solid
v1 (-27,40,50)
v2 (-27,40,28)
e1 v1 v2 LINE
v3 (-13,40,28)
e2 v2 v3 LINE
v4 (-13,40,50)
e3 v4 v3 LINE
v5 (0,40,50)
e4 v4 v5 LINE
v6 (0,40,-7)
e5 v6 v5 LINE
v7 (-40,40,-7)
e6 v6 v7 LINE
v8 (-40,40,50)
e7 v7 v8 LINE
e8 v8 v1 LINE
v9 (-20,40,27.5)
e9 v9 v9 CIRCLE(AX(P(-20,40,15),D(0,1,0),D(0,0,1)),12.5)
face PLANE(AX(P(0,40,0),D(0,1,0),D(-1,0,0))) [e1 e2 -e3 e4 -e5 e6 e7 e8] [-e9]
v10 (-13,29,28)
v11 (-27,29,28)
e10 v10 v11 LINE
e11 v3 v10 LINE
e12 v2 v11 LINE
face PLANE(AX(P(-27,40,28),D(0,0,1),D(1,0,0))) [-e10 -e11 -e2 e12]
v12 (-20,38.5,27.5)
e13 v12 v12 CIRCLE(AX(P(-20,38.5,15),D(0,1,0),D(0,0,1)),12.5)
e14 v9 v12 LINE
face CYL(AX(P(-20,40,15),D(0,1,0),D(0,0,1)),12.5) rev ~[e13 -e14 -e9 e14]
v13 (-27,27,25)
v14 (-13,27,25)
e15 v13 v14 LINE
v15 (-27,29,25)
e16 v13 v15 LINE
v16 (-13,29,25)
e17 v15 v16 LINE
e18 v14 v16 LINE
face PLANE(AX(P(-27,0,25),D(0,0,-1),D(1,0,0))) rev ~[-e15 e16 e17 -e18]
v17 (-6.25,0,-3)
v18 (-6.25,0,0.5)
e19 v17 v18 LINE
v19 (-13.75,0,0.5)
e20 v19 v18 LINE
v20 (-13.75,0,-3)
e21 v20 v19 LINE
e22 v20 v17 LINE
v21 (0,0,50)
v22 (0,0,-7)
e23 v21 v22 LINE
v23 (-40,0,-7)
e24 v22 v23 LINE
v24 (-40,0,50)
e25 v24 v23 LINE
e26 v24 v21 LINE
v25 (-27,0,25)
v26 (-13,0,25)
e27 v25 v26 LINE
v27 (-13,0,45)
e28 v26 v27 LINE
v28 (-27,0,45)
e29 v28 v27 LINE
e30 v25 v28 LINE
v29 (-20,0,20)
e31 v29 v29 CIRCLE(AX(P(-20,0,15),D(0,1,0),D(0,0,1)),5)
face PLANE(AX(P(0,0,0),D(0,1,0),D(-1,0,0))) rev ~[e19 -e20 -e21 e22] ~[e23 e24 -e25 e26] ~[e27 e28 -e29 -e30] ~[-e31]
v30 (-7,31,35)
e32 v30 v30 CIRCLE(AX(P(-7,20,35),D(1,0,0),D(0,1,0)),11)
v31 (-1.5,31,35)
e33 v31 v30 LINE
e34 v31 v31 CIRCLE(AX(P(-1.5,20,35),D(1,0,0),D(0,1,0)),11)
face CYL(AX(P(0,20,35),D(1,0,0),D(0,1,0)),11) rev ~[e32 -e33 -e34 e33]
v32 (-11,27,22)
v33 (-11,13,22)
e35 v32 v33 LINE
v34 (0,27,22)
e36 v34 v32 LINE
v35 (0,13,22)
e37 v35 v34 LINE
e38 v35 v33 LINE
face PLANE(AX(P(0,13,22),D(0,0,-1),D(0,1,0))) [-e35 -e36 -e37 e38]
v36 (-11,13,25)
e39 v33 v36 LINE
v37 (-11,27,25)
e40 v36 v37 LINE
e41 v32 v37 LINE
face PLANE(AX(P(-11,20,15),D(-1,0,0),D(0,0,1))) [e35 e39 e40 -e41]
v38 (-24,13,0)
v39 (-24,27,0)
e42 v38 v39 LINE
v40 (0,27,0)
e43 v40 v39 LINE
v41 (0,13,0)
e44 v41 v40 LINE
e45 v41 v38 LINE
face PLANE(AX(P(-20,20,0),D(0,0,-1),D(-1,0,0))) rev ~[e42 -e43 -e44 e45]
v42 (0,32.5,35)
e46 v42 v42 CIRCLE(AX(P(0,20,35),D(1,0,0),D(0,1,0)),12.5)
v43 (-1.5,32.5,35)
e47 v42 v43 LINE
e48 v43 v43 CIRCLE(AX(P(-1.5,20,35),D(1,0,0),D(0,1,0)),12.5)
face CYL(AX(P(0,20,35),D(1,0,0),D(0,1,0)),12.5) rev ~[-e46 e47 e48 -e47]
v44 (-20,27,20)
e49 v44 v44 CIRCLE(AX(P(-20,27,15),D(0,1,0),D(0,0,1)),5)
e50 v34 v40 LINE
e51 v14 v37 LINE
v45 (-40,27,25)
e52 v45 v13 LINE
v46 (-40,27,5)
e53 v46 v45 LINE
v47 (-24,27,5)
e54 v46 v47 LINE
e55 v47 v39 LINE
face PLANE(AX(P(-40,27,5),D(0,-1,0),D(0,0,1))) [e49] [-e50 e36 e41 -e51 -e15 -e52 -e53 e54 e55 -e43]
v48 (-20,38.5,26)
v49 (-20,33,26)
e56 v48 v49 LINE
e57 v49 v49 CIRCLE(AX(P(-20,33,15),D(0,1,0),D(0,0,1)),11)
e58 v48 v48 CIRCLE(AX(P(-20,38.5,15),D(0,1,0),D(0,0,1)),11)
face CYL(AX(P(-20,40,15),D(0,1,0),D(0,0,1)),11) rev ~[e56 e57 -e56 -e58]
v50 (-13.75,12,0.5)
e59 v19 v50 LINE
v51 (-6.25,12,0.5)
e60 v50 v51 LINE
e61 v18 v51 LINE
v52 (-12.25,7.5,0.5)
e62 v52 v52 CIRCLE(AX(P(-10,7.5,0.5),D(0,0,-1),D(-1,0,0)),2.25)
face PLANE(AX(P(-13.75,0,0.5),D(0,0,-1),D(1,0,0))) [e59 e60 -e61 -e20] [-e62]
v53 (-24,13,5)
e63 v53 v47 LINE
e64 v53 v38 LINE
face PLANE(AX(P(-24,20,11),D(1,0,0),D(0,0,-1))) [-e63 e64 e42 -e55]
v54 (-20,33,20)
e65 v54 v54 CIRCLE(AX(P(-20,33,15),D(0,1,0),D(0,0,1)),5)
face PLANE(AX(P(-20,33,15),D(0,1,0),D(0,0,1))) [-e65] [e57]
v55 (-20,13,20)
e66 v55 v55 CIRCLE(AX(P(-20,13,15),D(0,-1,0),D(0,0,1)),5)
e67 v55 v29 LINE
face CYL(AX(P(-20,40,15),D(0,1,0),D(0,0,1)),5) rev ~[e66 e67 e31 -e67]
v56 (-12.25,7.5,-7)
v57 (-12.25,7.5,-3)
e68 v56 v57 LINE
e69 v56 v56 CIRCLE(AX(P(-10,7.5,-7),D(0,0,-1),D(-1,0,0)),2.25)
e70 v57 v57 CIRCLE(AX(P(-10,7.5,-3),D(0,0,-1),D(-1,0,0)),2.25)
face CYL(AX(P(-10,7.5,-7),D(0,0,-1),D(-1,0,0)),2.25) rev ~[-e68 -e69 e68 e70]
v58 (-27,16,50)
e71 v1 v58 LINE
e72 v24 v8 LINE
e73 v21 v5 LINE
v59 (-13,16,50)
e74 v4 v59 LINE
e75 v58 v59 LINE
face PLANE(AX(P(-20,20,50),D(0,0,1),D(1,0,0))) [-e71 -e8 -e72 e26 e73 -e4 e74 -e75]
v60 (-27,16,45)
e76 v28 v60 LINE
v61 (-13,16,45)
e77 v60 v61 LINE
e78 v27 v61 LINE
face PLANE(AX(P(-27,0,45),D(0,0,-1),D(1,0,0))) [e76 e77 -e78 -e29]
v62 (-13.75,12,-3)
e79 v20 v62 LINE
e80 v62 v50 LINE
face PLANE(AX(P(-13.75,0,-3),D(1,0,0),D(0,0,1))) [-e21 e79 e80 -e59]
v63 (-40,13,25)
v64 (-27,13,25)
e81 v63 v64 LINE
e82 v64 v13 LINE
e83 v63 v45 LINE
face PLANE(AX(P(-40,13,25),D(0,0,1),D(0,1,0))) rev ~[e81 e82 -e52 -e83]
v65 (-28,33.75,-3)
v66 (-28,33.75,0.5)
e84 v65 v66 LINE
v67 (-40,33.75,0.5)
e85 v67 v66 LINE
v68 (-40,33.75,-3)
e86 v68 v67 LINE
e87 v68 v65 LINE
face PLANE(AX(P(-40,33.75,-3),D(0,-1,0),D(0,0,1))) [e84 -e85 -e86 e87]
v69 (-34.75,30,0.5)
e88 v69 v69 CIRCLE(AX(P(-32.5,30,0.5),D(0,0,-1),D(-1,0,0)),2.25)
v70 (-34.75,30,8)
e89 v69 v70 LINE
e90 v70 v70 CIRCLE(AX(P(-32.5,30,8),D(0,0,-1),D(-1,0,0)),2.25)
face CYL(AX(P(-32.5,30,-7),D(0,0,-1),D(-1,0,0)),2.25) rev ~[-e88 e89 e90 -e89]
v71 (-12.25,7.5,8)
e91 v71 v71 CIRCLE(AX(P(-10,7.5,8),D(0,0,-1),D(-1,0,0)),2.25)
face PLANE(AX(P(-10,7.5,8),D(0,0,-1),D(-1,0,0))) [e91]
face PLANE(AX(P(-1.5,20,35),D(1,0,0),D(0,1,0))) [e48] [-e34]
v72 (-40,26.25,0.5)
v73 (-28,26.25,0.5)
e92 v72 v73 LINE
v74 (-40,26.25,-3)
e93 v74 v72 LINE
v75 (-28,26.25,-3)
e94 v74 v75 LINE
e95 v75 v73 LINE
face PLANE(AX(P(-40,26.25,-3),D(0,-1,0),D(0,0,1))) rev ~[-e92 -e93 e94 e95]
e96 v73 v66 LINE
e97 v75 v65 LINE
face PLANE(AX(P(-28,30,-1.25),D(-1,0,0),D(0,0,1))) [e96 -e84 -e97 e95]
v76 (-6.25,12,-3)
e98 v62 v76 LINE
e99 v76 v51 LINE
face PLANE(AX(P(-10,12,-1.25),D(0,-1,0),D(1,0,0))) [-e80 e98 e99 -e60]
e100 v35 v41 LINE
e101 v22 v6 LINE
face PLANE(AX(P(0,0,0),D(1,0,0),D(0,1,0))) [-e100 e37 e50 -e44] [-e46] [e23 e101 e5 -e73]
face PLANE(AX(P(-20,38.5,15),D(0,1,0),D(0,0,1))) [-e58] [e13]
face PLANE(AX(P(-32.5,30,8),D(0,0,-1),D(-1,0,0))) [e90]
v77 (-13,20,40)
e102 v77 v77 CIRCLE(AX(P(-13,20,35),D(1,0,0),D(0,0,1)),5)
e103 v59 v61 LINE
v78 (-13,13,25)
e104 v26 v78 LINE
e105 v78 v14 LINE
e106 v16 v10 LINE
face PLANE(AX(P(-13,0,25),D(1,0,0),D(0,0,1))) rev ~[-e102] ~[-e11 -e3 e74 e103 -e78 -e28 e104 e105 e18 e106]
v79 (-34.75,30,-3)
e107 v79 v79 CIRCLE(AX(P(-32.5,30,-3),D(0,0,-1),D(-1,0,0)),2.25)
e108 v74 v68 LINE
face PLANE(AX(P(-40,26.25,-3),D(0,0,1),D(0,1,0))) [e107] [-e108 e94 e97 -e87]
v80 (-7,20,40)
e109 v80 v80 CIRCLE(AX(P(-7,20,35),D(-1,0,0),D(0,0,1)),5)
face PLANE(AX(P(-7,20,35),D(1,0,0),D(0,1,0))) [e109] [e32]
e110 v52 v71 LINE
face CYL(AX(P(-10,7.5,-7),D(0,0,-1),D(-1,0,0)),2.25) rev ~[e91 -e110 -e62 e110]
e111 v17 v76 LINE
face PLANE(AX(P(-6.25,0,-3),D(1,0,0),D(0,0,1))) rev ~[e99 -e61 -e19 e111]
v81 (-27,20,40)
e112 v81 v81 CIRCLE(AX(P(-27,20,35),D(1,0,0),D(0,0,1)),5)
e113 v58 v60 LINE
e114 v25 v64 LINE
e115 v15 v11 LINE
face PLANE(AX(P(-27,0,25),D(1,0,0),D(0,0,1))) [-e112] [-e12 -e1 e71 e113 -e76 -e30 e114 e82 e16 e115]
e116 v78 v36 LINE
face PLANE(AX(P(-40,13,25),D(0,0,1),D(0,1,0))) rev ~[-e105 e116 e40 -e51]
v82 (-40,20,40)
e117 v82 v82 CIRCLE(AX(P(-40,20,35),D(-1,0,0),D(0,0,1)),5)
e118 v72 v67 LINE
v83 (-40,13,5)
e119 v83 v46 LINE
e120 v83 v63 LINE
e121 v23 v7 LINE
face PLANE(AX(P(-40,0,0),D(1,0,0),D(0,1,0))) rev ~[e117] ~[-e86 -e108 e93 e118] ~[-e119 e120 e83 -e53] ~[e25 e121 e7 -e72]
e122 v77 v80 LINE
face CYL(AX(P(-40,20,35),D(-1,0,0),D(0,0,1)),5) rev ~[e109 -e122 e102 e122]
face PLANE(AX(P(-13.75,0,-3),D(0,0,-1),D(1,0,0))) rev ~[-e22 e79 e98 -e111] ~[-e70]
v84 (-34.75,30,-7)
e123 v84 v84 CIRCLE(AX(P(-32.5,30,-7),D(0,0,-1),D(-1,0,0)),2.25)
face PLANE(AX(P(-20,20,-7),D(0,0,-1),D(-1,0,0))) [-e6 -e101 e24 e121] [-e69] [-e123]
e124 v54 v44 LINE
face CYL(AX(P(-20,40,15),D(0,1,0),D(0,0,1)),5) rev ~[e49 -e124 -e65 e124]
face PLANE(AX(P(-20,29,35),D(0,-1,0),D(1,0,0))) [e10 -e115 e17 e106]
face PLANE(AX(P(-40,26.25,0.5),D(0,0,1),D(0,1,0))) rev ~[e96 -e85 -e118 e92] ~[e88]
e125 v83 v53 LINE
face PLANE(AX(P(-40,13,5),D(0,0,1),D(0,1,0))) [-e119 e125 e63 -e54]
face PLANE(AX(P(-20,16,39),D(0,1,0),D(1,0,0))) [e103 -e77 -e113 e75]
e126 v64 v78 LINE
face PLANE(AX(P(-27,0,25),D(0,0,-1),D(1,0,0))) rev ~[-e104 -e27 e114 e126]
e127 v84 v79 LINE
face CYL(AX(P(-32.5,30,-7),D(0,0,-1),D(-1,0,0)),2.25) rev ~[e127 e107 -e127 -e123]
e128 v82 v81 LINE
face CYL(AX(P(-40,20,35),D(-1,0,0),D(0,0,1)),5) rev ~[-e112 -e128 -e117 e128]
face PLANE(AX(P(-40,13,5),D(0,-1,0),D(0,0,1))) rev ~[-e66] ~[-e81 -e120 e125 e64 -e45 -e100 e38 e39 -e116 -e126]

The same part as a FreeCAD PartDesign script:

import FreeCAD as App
import Part
import Sketcher

V = App.Vector


def add_polygon(sketch, points):
    """Adds a closed chain of lines whose ends are joined by coincident constraints."""
    first, n = sketch.GeometryCount, len(points)
    for a, b in zip(points, points[1:] + points[:1]):
        sketch.addGeometry(Part.LineSegment(App.Vector(*a, 0), App.Vector(*b, 0)), False)
    for i in range(n):
        sketch.addConstraint(Sketcher.Constraint("Coincident", first + i, 2, first + (i + 1) % n, 1))

doc = App.newDocument("Part")
body = doc.addObject("PartDesign::Body", "Body")

# Sketch on XY plane
sketch1 = body.newObject("Sketcher::SketchObject", "Sketch")
sketch1.AttachmentSupport = (doc.getObject("XY_Plane"), [""])
sketch1.MapMode = "FlatFace"
add_polygon(sketch1, [(-40, 40), (-40, 0), (0, 0), (0, 40)])  # lines 0-3
sketch1.addConstraint(Sketcher.Constraint("Vertical", 0))
sketch1.addConstraint(Sketcher.Constraint("Horizontal", 1))
sketch1.addConstraint(Sketcher.Constraint("Vertical", 2))
sketch1.addConstraint(Sketcher.Constraint("Horizontal", 3))
sketch1.addConstraint(Sketcher.Constraint("Coincident", 1, 2, -1, 1))
sketch1.addConstraint(Sketcher.Constraint("Equal", 3, 0))
sketch1.addConstraint(Sketcher.Constraint("DistanceX", 1, 1, 1, 2, 40.0))
pad1 = body.newObject("PartDesign::Pad", "Pad")
pad1.Profile = sketch1
pad1.Length = 50

# Sketch on XZ plane
sketch2 = body.newObject("Sketcher::SketchObject", "Sketch001")
sketch2.AttachmentSupport = (doc.getObject("XZ_Plane"), [""])
sketch2.MapMode = "FlatFace"
sketch2.AttachmentOffset = App.Placement(V(0, 0, -40), App.Rotation())
sketch2.addGeometry(Part.Circle(V(-20, 15, 0), V(0, 0, 1), 5), False)
sketch2.addConstraint(Sketcher.Constraint("Diameter", 0, 10.0))
sketch2.addConstraint(Sketcher.Constraint("DistanceX", 0, 3, -1, 1, 20.0))
sketch2.addConstraint(Sketcher.Constraint("DistanceY", -1, 1, 0, 3, 15.0))
pocket1 = body.newObject("PartDesign::Pocket", "Pocket")
pocket1.Profile = sketch2
pocket1.Type = "ThroughAll"
pocket1.Reversed = True

# Sketch on YZ plane
sketch3 = body.newObject("Sketcher::SketchObject", "Sketch002")
sketch3.AttachmentSupport = (doc.getObject("YZ_Plane"), [""])
sketch3.MapMode = "FlatFace"
sketch3.AttachmentOffset = App.Placement(V(0, 0, -40), App.Rotation())
sketch3.addGeometry(Part.Circle(V(20, 35, 0), V(0, 0, 1), 5), False)
sketch3.addConstraint(Sketcher.Constraint("Diameter", 0, 10.0))
sketch3.addConstraint(Sketcher.Constraint("DistanceX", -1, 1, 0, 3, 20.0))
sketch3.addConstraint(Sketcher.Constraint("DistanceY", -1, 1, 0, 3, 35.0))
pocket2 = body.newObject("PartDesign::Pocket", "Pocket001")
pocket2.Profile = sketch3
pocket2.Type = "ThroughAll"
pocket2.Reversed = True

# Sketch on YZ plane
sketch4 = body.newObject("Sketcher::SketchObject", "Sketch003")
sketch4.AttachmentSupport = (doc.getObject("YZ_Plane"), [""])
sketch4.MapMode = "FlatFace"
sketch4.AttachmentOffset = App.Placement(V(0, 0, -40), App.Rotation())
add_polygon(sketch4, [(27, 5), (13, 5), (13, 25), (27, 25)])  # lines 0-3
sketch4.addConstraint(Sketcher.Constraint("Horizontal", 0))
sketch4.addConstraint(Sketcher.Constraint("Vertical", 1))
sketch4.addConstraint(Sketcher.Constraint("Horizontal", 2))
sketch4.addConstraint(Sketcher.Constraint("Vertical", 3))
sketch4.addConstraint(Sketcher.Constraint("DistanceX", 0, 2, 0, 1, 14.0))
sketch4.addConstraint(Sketcher.Constraint("DistanceY", 1, 1, 1, 2, 20.0))
sketch4.addConstraint(Sketcher.Constraint("DistanceX", -1, 1, 0, 2, 13.0))
sketch4.addConstraint(Sketcher.Constraint("DistanceY", -1, 1, 0, 2, 5.0))
pocket3 = body.newObject("PartDesign::Pocket", "Pocket002")
pocket3.Profile = sketch4
pocket3.Length = 29
pocket3.Reversed = True

# Sketch on XZ plane
sketch5 = body.newObject("Sketcher::SketchObject", "Sketch004")
sketch5.AttachmentSupport = (doc.getObject("XZ_Plane"), [""])
sketch5.MapMode = "FlatFace"
add_polygon(sketch5, [(-27, 45), (-27, 25), (-13, 25), (-13, 45)])  # lines 0-3
sketch5.addConstraint(Sketcher.Constraint("Vertical", 0))
sketch5.addConstraint(Sketcher.Constraint("Horizontal", 1))
sketch5.addConstraint(Sketcher.Constraint("Vertical", 2))
sketch5.addConstraint(Sketcher.Constraint("Horizontal", 3))
sketch5.addConstraint(Sketcher.Constraint("DistanceX", 1, 1, 1, 2, 14.0))
sketch5.addConstraint(Sketcher.Constraint("DistanceY", 0, 2, 0, 1, 20.0))
sketch5.addConstraint(Sketcher.Constraint("DistanceX", 0, 2, -1, 1, 27.0))
sketch5.addConstraint(Sketcher.Constraint("DistanceY", -1, 1, 0, 2, 25.0))
pocket4 = body.newObject("PartDesign::Pocket", "Pocket003")
pocket4.Profile = sketch5
pocket4.Length = 29

# Sketch on YZ plane
sketch6 = body.newObject("Sketcher::SketchObject", "Sketch005")
sketch6.AttachmentSupport = (doc.getObject("YZ_Plane"), [""])
sketch6.MapMode = "FlatFace"
add_polygon(sketch6, [(27, 22), (13, 22), (13, 0), (27, 0)])  # lines 0-3
sketch6.addConstraint(Sketcher.Constraint("Horizontal", 0))
sketch6.addConstraint(Sketcher.Constraint("Vertical", 1))
sketch6.addConstraint(Sketcher.Constraint("Horizontal", 2))
sketch6.addConstraint(Sketcher.Constraint("Vertical", 3))
sketch6.addConstraint(Sketcher.Constraint("PointOnObject", 1, 2, -1))
sketch6.addConstraint(Sketcher.Constraint("DistanceX", 0, 2, 0, 1, 14.0))
sketch6.addConstraint(Sketcher.Constraint("DistanceY", 1, 2, 1, 1, 22.0))
sketch6.addConstraint(Sketcher.Constraint("DistanceX", -1, 1, 0, 2, 13.0))
pocket5 = body.newObject("PartDesign::Pocket", "Pocket004")
pocket5.Profile = sketch6
pocket5.Length = 24

# Sketch on XZ plane
sketch7 = body.newObject("Sketcher::SketchObject", "Sketch006")
sketch7.AttachmentSupport = (doc.getObject("XZ_Plane"), [""])
sketch7.MapMode = "FlatFace"
sketch7.AttachmentOffset = App.Placement(V(0, 0, -40), App.Rotation())
add_polygon(sketch7, [(-27, 28), (-27, 50), (-13, 50), (-13, 28)])  # lines 0-3
sketch7.addConstraint(Sketcher.Constraint("Vertical", 0))
sketch7.addConstraint(Sketcher.Constraint("Horizontal", 1))
sketch7.addConstraint(Sketcher.Constraint("Vertical", 2))
sketch7.addConstraint(Sketcher.Constraint("Horizontal", 3))
sketch7.addConstraint(Sketcher.Constraint("DistanceX", 1, 1, 1, 2, 14.0))
sketch7.addConstraint(Sketcher.Constraint("DistanceY", 0, 1, 0, 2, 22.0))
sketch7.addConstraint(Sketcher.Constraint("DistanceX", 0, 2, -1, 1, 27.0))
sketch7.addConstraint(Sketcher.Constraint("DistanceY", -1, 1, 0, 2, 50.0))
pocket6 = body.newObject("PartDesign::Pocket", "Pocket005")
pocket6.Profile = sketch7
pocket6.Length = 24
pocket6.Reversed = True

# Sketch on YZ plane
sketch8 = body.newObject("Sketcher::SketchObject", "Sketch007")
sketch8.AttachmentSupport = (doc.getObject("YZ_Plane"), [""])
sketch8.MapMode = "FlatFace"
sketch8.addGeometry(Part.Circle(V(20, 35, 0), V(0, 0, 1), 11), False)
sketch8.addConstraint(Sketcher.Constraint("Diameter", 0, 22.0))
sketch8.addConstraint(Sketcher.Constraint("DistanceX", -1, 1, 0, 3, 20.0))
sketch8.addConstraint(Sketcher.Constraint("DistanceY", -1, 1, 0, 3, 35.0))
pocket7 = body.newObject("PartDesign::Pocket", "Pocket006")
pocket7.Profile = sketch8
pocket7.Length = 7

# Sketch on YZ plane
sketch9 = body.newObject("Sketcher::SketchObject", "Sketch008")
sketch9.AttachmentSupport = (doc.getObject("YZ_Plane"), [""])
sketch9.MapMode = "FlatFace"
sketch9.addGeometry(Part.Circle(V(20, 35, 0), V(0, 0, 1), 12), False)
sketch9.addConstraint(Sketcher.Constraint("Diameter", 0, 25.0))
sketch9.addConstraint(Sketcher.Constraint("DistanceX", -1, 1, 0, 3, 20.0))
sketch9.addConstraint(Sketcher.Constraint("DistanceY", -1, 1, 0, 3, 35.0))
pocket8 = body.newObject("PartDesign::Pocket", "Pocket007")
pocket8.Profile = sketch9
pocket8.Length = 1.5

# Sketch on XZ plane
sketch10 = body.newObject("Sketcher::SketchObject", "Sketch009")
sketch10.AttachmentSupport = (doc.getObject("XZ_Plane"), [""])
sketch10.MapMode = "FlatFace"
sketch10.AttachmentOffset = App.Placement(V(0, 0, -40), App.Rotation())
sketch10.addGeometry(Part.Circle(V(-20, 15, 0), V(0, 0, 1), 11), False)
sketch10.addConstraint(Sketcher.Constraint("Diameter", 0, 22.0))
sketch10.addConstraint(Sketcher.Constraint("DistanceX", 0, 3, -1, 1, 20.0))
sketch10.addConstraint(Sketcher.Constraint("DistanceY", -1, 1, 0, 3, 15.0))
pocket9 = body.newObject("PartDesign::Pocket", "Pocket008")
pocket9.Profile = sketch10
pocket9.Length = 7
pocket9.Reversed = True

# Sketch on XZ plane
sketch11 = body.newObject("Sketcher::SketchObject", "Sketch010")
sketch11.AttachmentSupport = (doc.getObject("XZ_Plane"), [""])
sketch11.MapMode = "FlatFace"
sketch11.AttachmentOffset = App.Placement(V(0, 0, -40), App.Rotation())
sketch11.addGeometry(Part.Circle(V(-20, 15, 0), V(0, 0, 1), 12), False)
sketch11.addConstraint(Sketcher.Constraint("Diameter", 0, 25.0))
sketch11.addConstraint(Sketcher.Constraint("DistanceX", 0, 3, -1, 1, 20.0))
sketch11.addConstraint(Sketcher.Constraint("DistanceY", -1, 1, 0, 3, 15.0))
pocket10 = body.newObject("PartDesign::Pocket", "Pocket009")
pocket10.Profile = sketch11
pocket10.Length = 1.5
pocket10.Reversed = True

# Sketch on XY plane
sketch12 = body.newObject("Sketcher::SketchObject", "Sketch011")
sketch12.AttachmentSupport = (doc.getObject("XY_Plane"), [""])
sketch12.MapMode = "FlatFace"
add_polygon(sketch12, [(0, 40), (0, 0), (-40, 0), (-40, 40)])  # lines 0-3
sketch12.addConstraint(Sketcher.Constraint("Vertical", 0))
sketch12.addConstraint(Sketcher.Constraint("Horizontal", 1))
sketch12.addConstraint(Sketcher.Constraint("Vertical", 2))
sketch12.addConstraint(Sketcher.Constraint("Horizontal", 3))
sketch12.addConstraint(Sketcher.Constraint("Coincident", 0, 2, -1, 1))
sketch12.addConstraint(Sketcher.Constraint("Equal", 3, 0))
sketch12.addConstraint(Sketcher.Constraint("DistanceX", 1, 2, 1, 1, 40.0))
pad2 = body.newObject("PartDesign::Pad", "Pad001")
pad2.Profile = sketch12
pad2.Length = 7
pad2.Reversed = True

# Sketch on XY plane
sketch13 = body.newObject("Sketcher::SketchObject", "Sketch012")
sketch13.AttachmentSupport = (doc.getObject("XY_Plane"), [""])
sketch13.MapMode = "FlatFace"
sketch13.AttachmentOffset = App.Placement(V(0, 0, -7), App.Rotation())
sketch13.addGeometry(Part.Circle(V(-10, 7.5, 0), V(0, 0, 1), 2.2), False)
sketch13.addGeometry(Part.Circle(V(-32.5, 30, 0), V(0, 0, 1), 2.2), False)
sketch13.addConstraint(Sketcher.Constraint("Equal", 0, 1))
sketch13.addConstraint(Sketcher.Constraint("Diameter", 0, 4.5))
sketch13.addConstraint(Sketcher.Constraint("DistanceX", 0, 3, -1, 1, 10.0))
sketch13.addConstraint(Sketcher.Constraint("DistanceY", -1, 1, 1, 3, 30.0))
sketch13.addConstraint(Sketcher.Constraint("DistanceY", -1, 1, 0, 3, 7.5))
sketch13.addConstraint(Sketcher.Constraint("DistanceX", 1, 3, -1, 1, 32.5))
pocket11 = body.newObject("PartDesign::Pocket", "Pocket010")
pocket11.Profile = sketch13
pocket11.Length = 15
pocket11.Reversed = True

# Sketch on YZ plane
sketch14 = body.newObject("Sketcher::SketchObject", "Sketch013")
sketch14.AttachmentSupport = (doc.getObject("YZ_Plane"), [""])
sketch14.MapMode = "FlatFace"
sketch14.AttachmentOffset = App.Placement(V(0, 0, -40), App.Rotation())
add_polygon(sketch14, [(33.8, -3), (26.2, -3), (26.2, 0.5), (33.8, 0.5)])  # lines 0-3
sketch14.addConstraint(Sketcher.Constraint("Horizontal", 0))
sketch14.addConstraint(Sketcher.Constraint("Vertical", 1))
sketch14.addConstraint(Sketcher.Constraint("Horizontal", 2))
sketch14.addConstraint(Sketcher.Constraint("Vertical", 3))
sketch14.addConstraint(Sketcher.Constraint("DistanceX", 0, 2, 0, 1, 7.5))
sketch14.addConstraint(Sketcher.Constraint("DistanceY", 1, 1, 1, 2, 3.5))
sketch14.addConstraint(Sketcher.Constraint("DistanceY", 0, 2, -1, 1, 3.0))
sketch14.addConstraint(Sketcher.Constraint("DistanceX", -1, 1, 0, 2, 26.25))
pocket12 = body.newObject("PartDesign::Pocket", "Pocket011")
pocket12.Profile = sketch14
pocket12.Length = 12
pocket12.Reversed = True

# Sketch on XZ plane
sketch15 = body.newObject("Sketcher::SketchObject", "Sketch014")
sketch15.AttachmentSupport = (doc.getObject("XZ_Plane"), [""])
sketch15.MapMode = "FlatFace"
add_polygon(sketch15, [(-13.8, 0.5), (-13.8, -3), (-6.2, -3), (-6.2, 0.5)])  # lines 0-3
sketch15.addConstraint(Sketcher.Constraint("Vertical", 0))
sketch15.addConstraint(Sketcher.Constraint("Horizontal", 1))
sketch15.addConstraint(Sketcher.Constraint("Vertical", 2))
sketch15.addConstraint(Sketcher.Constraint("Horizontal", 3))
sketch15.addConstraint(Sketcher.Constraint("DistanceX", 1, 1, 1, 2, 7.5))
sketch15.addConstraint(Sketcher.Constraint("DistanceY", 0, 2, 0, 1, 3.5))
sketch15.addConstraint(Sketcher.Constraint("DistanceY", 0, 2, -1, 1, 3.0))
sketch15.addConstraint(Sketcher.Constraint("DistanceX", 0, 2, -1, 1, 13.75))
pocket13 = body.newObject("PartDesign::Pocket", "Pocket012")
pocket13.Profile = sketch15
pocket13.Length = 12

doc.recompute()
